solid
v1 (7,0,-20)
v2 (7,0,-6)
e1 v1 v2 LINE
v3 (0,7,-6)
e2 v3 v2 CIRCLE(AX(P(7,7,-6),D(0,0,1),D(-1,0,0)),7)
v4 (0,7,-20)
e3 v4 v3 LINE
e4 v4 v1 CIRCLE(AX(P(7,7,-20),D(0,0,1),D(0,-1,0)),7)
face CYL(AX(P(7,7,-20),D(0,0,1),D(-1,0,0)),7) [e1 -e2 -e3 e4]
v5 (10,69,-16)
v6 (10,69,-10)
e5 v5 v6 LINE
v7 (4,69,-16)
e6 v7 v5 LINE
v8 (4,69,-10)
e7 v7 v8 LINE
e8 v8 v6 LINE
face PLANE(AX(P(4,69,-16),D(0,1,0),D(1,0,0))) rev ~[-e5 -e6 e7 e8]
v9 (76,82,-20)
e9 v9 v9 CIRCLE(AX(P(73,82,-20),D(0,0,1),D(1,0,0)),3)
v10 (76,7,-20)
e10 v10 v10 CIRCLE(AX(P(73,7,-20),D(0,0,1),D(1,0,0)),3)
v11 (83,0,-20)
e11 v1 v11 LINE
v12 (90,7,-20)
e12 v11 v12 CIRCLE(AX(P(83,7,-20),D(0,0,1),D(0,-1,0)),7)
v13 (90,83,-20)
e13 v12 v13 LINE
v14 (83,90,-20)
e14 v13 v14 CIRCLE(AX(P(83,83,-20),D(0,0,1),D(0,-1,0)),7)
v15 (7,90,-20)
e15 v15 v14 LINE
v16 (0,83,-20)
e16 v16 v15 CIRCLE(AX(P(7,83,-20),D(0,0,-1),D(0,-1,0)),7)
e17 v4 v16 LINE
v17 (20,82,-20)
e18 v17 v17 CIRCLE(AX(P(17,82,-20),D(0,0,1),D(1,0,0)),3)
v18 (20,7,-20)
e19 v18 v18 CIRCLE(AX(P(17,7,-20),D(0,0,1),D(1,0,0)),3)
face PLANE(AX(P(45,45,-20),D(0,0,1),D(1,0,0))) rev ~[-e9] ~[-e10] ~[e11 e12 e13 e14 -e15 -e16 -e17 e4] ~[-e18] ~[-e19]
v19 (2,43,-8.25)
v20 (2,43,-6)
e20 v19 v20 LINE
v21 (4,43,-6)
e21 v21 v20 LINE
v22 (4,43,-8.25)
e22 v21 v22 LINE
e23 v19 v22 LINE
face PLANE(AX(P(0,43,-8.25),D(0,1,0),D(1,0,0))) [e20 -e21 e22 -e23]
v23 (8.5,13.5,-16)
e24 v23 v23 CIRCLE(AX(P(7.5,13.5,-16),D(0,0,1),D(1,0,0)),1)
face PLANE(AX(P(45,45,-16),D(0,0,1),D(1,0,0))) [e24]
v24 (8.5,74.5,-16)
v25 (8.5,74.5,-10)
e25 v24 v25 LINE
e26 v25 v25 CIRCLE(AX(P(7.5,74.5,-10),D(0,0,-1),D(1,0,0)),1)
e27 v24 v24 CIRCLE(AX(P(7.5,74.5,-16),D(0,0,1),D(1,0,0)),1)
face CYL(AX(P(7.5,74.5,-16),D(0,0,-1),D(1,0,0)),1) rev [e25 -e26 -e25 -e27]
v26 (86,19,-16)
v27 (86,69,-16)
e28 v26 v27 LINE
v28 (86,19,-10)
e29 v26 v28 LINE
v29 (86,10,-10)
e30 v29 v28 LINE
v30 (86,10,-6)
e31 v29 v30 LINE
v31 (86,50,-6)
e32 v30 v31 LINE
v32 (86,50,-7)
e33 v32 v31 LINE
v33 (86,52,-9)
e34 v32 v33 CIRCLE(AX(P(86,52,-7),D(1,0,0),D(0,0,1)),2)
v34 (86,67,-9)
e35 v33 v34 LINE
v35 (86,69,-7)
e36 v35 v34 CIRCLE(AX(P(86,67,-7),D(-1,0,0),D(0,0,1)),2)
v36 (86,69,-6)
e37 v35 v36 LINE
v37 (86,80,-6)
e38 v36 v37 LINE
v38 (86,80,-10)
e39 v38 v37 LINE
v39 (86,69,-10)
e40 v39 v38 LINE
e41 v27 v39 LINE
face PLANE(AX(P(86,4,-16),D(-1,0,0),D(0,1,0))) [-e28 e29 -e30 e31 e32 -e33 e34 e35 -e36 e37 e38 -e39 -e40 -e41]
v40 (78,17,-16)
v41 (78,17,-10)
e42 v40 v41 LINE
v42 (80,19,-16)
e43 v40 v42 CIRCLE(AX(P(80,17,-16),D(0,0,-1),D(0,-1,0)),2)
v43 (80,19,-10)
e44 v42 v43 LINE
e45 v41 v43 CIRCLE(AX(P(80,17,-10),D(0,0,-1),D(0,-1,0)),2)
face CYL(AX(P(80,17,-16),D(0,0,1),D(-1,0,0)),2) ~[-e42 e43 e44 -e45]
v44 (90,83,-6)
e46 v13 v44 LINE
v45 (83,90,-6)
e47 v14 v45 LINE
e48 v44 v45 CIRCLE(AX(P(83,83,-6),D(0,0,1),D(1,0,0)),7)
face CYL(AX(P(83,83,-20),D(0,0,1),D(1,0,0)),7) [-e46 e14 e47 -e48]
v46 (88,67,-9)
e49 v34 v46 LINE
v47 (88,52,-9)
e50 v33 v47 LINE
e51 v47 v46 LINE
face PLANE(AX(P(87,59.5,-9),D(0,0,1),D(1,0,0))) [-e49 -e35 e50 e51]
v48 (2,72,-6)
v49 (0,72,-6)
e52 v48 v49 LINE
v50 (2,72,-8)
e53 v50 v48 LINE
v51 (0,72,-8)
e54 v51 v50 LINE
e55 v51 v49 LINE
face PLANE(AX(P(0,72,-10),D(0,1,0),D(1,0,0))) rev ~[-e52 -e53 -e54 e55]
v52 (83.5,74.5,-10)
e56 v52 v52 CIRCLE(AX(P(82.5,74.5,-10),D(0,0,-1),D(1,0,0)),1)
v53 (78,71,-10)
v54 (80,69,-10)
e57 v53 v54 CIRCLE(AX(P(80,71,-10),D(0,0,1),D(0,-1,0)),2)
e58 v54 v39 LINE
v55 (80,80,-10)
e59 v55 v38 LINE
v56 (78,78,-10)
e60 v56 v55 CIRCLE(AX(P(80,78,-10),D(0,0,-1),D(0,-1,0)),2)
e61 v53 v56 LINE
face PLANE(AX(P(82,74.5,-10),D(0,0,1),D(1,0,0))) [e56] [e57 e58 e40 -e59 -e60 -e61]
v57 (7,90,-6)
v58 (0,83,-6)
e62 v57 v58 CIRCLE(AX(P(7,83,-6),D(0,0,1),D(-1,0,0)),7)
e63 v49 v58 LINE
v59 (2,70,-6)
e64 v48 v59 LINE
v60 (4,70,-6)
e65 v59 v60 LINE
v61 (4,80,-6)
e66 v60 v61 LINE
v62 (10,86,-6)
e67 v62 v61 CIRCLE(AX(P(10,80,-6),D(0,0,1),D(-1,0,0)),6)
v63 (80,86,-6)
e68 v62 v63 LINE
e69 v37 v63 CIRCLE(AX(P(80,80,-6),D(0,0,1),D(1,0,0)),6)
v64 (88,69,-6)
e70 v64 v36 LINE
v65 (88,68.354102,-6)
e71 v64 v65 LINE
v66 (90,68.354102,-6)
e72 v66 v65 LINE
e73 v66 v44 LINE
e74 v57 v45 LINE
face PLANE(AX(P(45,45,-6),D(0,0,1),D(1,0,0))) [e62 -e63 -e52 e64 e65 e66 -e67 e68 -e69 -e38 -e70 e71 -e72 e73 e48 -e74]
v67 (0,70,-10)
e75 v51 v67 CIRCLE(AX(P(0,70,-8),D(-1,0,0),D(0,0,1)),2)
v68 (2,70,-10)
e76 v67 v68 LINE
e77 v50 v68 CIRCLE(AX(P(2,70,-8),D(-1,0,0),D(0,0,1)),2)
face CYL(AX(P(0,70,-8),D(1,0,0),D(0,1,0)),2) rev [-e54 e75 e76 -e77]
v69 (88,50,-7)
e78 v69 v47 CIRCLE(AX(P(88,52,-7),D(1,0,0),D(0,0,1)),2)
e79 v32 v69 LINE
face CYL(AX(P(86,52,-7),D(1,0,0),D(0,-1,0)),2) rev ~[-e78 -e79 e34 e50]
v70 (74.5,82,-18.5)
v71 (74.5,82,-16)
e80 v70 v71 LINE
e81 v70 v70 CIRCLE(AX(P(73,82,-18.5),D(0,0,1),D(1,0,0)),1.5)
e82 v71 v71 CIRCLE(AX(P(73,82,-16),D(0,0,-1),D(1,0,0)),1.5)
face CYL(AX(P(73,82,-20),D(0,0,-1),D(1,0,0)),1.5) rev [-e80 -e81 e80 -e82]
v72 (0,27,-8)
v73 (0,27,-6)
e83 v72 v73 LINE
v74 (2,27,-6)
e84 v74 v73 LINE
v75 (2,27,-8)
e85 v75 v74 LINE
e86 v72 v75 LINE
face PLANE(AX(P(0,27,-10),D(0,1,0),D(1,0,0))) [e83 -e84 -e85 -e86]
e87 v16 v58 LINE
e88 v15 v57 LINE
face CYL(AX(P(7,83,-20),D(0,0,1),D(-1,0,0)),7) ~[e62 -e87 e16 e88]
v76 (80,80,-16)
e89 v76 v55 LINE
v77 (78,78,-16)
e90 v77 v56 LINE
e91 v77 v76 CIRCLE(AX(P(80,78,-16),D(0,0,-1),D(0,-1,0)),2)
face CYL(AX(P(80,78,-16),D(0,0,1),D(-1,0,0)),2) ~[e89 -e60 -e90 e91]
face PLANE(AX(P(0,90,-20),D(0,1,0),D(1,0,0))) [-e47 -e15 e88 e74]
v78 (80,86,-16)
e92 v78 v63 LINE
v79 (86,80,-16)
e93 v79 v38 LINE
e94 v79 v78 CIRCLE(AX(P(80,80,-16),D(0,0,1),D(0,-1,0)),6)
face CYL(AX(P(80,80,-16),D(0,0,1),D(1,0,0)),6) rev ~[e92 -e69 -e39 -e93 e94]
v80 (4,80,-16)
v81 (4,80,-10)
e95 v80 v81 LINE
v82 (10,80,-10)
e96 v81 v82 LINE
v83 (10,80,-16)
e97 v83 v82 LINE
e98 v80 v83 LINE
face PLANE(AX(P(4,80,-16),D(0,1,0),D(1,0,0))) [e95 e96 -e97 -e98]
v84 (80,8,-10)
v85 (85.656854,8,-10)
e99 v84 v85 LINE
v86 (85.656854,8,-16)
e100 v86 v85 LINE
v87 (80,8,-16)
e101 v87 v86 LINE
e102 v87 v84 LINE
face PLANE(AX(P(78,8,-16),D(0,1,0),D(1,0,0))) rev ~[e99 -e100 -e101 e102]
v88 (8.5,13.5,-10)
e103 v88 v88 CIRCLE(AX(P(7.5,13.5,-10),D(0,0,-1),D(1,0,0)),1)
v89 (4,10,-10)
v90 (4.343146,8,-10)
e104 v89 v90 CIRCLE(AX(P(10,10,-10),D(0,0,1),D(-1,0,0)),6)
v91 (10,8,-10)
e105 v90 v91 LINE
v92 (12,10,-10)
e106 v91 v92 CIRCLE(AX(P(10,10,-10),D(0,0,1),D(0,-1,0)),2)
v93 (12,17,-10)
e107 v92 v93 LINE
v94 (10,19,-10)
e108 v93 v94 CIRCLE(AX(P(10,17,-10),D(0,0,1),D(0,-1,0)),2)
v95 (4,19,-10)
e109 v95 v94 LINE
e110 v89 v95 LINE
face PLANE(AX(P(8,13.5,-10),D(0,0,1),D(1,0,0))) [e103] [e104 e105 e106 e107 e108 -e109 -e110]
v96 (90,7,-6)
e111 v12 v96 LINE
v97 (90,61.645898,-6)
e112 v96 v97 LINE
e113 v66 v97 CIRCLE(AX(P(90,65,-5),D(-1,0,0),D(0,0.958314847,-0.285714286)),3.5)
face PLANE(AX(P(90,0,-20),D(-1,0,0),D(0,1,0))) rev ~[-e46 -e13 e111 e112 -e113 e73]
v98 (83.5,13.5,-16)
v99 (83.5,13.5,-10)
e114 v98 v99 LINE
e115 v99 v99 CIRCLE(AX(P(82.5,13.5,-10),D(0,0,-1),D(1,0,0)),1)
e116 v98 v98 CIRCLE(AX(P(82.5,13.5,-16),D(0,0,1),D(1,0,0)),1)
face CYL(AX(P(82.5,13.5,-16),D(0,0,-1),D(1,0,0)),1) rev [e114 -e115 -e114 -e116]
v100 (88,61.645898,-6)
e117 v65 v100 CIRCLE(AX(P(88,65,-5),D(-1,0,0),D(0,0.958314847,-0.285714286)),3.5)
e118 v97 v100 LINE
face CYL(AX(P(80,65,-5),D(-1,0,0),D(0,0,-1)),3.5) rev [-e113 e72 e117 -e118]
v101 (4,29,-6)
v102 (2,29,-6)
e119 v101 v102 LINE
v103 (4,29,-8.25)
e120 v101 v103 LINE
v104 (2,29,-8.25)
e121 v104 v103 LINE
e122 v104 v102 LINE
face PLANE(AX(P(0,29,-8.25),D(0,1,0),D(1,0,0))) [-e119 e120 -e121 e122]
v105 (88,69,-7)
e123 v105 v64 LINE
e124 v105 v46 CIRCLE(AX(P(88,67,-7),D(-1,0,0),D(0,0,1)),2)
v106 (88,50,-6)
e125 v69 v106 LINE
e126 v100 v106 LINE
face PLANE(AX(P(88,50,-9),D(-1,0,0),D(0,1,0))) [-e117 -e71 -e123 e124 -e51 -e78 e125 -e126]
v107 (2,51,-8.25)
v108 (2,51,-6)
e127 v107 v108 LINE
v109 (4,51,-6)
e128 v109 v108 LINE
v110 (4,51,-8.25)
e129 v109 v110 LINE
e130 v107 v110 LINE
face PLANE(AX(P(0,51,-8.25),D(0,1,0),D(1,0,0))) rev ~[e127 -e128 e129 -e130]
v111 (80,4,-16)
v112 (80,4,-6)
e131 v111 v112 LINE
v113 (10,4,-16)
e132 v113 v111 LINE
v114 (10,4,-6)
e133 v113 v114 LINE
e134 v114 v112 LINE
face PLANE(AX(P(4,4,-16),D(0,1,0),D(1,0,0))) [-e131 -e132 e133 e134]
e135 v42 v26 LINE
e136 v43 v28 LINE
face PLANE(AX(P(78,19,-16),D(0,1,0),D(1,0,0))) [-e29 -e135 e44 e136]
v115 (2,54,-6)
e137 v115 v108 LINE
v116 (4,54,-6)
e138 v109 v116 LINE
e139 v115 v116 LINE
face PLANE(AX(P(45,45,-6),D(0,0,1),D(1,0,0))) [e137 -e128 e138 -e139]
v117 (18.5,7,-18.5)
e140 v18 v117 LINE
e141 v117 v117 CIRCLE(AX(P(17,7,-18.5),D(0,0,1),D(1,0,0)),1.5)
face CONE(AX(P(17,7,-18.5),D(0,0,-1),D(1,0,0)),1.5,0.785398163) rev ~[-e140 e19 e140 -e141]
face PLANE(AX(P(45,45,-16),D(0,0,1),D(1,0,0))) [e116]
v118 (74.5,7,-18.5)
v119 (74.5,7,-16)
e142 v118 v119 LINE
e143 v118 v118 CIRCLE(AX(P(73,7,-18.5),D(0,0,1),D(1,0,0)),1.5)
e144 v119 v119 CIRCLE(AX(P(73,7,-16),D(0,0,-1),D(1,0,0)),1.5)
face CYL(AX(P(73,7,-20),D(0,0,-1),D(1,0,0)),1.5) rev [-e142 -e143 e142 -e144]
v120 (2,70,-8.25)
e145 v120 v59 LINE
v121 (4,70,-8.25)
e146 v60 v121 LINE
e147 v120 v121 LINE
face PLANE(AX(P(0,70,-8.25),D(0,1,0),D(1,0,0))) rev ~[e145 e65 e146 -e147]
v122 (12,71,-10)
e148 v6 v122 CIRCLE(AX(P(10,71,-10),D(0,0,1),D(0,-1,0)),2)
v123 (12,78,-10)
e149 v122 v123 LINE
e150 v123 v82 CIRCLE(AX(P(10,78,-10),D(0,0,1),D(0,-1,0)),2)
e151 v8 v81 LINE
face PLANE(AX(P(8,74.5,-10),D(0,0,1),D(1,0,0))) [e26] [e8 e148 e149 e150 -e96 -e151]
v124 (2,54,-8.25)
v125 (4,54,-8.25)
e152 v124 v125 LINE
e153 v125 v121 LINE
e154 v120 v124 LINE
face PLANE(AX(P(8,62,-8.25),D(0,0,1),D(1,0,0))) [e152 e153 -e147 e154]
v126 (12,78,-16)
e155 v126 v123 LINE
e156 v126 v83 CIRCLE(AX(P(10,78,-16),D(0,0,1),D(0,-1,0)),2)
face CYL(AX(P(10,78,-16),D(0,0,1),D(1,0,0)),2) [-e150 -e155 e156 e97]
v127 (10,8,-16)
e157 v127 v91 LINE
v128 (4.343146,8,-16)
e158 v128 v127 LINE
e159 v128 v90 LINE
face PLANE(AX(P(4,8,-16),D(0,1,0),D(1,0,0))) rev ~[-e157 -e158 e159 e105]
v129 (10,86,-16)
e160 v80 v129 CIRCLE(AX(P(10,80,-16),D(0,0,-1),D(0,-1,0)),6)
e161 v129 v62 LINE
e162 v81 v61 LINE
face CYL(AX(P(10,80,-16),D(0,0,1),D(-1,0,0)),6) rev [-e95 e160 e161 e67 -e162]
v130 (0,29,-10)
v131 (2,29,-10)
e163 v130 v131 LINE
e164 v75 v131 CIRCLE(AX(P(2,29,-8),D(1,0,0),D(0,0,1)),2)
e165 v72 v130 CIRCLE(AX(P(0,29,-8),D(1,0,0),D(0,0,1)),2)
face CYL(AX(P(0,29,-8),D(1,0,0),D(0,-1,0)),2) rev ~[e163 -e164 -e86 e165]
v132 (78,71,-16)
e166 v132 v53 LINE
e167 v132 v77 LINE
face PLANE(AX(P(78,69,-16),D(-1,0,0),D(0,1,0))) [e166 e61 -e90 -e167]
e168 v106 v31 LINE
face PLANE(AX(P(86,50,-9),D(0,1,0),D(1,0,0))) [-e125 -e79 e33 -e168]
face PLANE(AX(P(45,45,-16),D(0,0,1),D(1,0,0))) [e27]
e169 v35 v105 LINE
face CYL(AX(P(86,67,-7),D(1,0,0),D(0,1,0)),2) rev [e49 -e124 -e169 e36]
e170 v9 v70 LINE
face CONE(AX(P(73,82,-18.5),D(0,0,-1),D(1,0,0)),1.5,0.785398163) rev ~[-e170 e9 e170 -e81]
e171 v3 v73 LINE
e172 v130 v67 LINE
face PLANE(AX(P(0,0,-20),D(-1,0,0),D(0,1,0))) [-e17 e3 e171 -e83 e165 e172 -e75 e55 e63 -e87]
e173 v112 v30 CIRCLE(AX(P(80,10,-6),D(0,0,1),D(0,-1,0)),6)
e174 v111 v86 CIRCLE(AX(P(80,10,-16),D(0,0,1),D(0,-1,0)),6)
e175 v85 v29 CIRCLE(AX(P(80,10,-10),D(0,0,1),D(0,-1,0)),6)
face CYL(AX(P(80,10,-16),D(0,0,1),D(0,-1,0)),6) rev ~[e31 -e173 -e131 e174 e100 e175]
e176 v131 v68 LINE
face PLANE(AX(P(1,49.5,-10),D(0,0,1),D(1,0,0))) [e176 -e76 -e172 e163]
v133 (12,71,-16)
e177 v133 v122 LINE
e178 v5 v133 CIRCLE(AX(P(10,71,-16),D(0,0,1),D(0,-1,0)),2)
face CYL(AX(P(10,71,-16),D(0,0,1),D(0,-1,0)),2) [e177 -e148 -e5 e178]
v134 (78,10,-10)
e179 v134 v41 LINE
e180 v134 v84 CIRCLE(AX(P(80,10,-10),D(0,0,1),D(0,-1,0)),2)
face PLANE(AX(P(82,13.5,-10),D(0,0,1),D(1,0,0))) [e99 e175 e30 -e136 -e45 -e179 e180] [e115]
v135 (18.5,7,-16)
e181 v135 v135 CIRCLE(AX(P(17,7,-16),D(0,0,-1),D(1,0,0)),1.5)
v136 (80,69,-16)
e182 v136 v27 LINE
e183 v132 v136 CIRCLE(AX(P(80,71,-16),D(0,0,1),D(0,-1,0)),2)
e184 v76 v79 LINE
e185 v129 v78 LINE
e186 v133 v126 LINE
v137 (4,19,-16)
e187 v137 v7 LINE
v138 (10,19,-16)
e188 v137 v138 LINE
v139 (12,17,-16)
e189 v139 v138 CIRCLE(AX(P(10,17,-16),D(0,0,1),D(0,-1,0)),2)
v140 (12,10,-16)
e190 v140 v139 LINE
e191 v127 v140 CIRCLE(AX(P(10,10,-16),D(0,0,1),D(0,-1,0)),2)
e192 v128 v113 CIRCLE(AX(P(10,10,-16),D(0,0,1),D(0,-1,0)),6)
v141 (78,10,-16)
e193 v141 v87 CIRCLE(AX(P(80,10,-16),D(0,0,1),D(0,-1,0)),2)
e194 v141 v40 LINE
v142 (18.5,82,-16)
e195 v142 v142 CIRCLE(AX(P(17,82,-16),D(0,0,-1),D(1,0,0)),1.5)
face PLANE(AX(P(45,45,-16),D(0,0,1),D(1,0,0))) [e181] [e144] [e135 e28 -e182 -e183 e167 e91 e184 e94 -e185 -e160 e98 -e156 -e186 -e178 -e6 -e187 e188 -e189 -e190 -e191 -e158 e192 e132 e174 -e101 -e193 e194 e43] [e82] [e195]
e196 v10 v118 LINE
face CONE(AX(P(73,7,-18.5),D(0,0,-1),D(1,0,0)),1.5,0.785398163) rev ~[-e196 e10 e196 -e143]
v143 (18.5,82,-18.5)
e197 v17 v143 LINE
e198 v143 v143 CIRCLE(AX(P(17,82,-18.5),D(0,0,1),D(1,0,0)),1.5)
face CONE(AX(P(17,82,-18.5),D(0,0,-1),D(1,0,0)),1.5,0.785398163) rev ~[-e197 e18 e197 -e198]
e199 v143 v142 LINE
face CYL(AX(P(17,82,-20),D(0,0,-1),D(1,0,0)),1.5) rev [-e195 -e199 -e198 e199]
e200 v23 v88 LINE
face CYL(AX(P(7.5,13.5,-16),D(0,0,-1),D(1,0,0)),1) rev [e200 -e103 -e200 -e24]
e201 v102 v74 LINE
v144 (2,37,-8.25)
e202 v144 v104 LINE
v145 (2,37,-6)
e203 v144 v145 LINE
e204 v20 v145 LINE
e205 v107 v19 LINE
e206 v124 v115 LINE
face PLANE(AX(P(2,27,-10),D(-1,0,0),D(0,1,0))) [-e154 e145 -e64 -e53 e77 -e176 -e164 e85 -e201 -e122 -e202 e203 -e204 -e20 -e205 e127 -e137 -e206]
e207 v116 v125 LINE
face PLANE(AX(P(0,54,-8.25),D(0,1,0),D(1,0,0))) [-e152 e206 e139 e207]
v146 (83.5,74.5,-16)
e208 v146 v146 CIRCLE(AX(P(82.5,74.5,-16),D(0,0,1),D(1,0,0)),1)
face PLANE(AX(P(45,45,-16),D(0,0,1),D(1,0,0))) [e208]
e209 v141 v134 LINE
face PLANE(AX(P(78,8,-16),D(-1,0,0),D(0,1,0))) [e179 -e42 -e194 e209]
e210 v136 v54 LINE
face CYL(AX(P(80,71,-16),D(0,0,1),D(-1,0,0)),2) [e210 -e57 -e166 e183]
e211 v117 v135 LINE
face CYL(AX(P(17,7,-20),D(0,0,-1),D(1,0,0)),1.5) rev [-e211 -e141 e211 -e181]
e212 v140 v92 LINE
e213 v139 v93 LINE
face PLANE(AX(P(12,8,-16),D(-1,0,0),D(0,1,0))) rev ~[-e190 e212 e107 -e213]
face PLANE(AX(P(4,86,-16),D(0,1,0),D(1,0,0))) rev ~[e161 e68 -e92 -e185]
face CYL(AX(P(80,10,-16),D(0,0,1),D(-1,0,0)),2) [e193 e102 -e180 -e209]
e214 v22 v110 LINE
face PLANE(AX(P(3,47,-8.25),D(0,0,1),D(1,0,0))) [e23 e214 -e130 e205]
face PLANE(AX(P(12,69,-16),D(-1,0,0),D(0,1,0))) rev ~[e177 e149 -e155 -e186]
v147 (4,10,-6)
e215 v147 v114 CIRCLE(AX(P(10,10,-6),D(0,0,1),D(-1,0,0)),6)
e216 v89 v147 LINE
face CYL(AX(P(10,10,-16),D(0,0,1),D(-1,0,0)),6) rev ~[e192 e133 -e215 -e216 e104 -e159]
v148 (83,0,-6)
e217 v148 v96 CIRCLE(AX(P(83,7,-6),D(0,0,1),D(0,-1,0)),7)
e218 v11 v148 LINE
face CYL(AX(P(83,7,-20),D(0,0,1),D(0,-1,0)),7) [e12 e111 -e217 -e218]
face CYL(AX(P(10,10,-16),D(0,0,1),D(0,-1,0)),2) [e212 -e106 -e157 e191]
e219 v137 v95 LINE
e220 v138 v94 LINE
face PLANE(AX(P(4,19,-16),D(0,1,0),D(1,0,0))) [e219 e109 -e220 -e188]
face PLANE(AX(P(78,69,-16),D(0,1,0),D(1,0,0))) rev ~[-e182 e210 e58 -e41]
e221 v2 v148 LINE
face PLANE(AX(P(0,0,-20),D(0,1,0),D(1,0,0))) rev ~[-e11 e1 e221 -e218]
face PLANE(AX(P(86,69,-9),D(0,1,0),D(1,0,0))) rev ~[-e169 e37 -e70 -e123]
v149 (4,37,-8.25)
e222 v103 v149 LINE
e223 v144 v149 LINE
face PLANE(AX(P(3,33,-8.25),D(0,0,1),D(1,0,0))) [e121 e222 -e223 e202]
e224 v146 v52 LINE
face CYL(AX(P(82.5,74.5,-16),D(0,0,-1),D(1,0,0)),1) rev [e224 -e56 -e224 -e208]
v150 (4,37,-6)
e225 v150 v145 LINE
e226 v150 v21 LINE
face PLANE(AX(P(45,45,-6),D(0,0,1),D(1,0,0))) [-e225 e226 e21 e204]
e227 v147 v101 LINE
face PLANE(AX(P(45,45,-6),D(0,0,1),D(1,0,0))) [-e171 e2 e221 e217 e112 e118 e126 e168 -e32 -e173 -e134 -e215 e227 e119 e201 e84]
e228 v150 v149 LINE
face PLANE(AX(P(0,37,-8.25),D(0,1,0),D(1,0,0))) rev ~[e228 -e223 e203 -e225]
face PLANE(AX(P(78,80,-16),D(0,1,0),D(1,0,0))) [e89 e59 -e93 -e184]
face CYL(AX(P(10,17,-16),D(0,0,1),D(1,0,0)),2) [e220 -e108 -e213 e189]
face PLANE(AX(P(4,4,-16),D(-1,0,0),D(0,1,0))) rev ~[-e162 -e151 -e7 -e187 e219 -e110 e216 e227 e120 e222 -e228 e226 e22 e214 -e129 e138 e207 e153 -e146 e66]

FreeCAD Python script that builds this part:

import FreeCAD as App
import Part
import Sketcher
from FreeCAD import Vector


def edges_at(feature, points):
    """Names of the edges that pass closest to the given points."""
    edges = feature.Shape.Edges
    near = lambda p: min(range(len(edges)), key=lambda i: edges[i].distToShape(Part.Vertex(*p))[0])
    return sorted({f"Edge{near(p) + 1}" for p in points})


def add_polygon(sketch, points):
    """Adds a closed chain of lines whose ends are joined by coincident constraints."""
    first, n = sketch.GeometryCount, len(points)
    for a, b in zip(points, points[1:] + points[:1]):
        sketch.addGeometry(Part.LineSegment(App.Vector(*a, 0), App.Vector(*b, 0)), False)
    for i in range(n):
        sketch.addConstraint(Sketcher.Constraint("Coincident", first + i, 2, first + (i + 1) % n, 1))

doc = App.newDocument("Part")
body = doc.addObject("PartDesign::Body", "Body")

# Sketch on XY plane
sketch1 = body.newObject("Sketcher::SketchObject", "Sketch")
sketch1.AttachmentSupport = (doc.getObject("XY_Plane"), [""])
sketch1.MapMode = "FlatFace"
sketch1.AttachmentOffset = App.Placement(Vector(0, 0, 4), App.Rotation())
sketch1.addGeometry(Part.Circle(Vector(82.5, 74.5, 0), Vector(0, 0, 1), 1), False)
sketch1.addConstraint([
    Sketcher.Constraint("Diameter", 0, 2.0),
    Sketcher.Constraint("DistanceX", -1, 1, 0, 3, 82.5),
    Sketcher.Constraint("DistanceY", -1, 1, 0, 3, 74.5),
])
pad1 = body.newObject("PartDesign::Pad", "Pad")
pad1.Profile = sketch1
pad1.Length = 8
body2 = doc.addObject("PartDesign::Body", "Body001")

# Sketch on XY plane
sketch2 = body2.newObject("Sketcher::SketchObject", "Sketch001")
sketch2.AttachmentSupport = (doc.getObject("XY_Plane001"), [""])
sketch2.MapMode = "FlatFace"
sketch2.AttachmentOffset = App.Placement(Vector(0, 0, 4), App.Rotation())
add_polygon(sketch2, [(78, 19), (78, 8), (86, 8), (86, 19)])  # lines 0-3
sketch2.addConstraint([
    Sketcher.Constraint("Vertical", 0),
    Sketcher.Constraint("Horizontal", 1),
    Sketcher.Constraint("Vertical", 2),
    Sketcher.Constraint("Horizontal", 3),
    Sketcher.Constraint("DistanceX", 1, 1, 1, 2, 8.0),
    Sketcher.Constraint("DistanceY", 0, 2, 0, 1, 11.0),
    Sketcher.Constraint("DistanceX", -1, 1, 0, 2, 78.0),
    Sketcher.Constraint("DistanceY", -1, 1, 0, 2, 8.0),
])
pad2 = body2.newObject("PartDesign::Pad", "Pad001")
pad2.Profile = sketch2
pad2.Length = 6
doc.recompute()

fillet = body2.newObject("PartDesign::Fillet", "Fillet")
fillet.Base = (pad2, edges_at(pad2, [(78, 8, 7), (78, 19, 7)]))
fillet.Radius = 2
body3 = doc.addObject("PartDesign::Body", "Body002")
doc.recompute()

body2.Placement = App.Placement(Vector(0, 61, 0), App.Rotation(Vector(0, 0, 1), 0))
boolean = body3.newObject("PartDesign::Boolean", "Boolean")
boolean.Type = "Fuse"
boolean.addObjects([body2])
doc.recompute()

boolean2 = body3.newObject("PartDesign::Boolean", "Boolean001")
boolean2.Type = "Cut"
boolean2.addObjects([body])
body4 = doc.addObject("PartDesign::Body", "Body003")

# Sketch on XY plane
sketch3 = body4.newObject("Sketcher::SketchObject", "Sketch002")
sketch3.AttachmentSupport = (doc.getObject("XY_Plane003"), [""])
sketch3.MapMode = "FlatFace"
sketch3.AttachmentOffset = App.Placement(Vector(0, 0, 4), App.Rotation())
sketch3.addGeometry(Part.Circle(Vector(82.5, 13.5, 0), Vector(0, 0, 1), 1), False)
sketch3.addConstraint([
    Sketcher.Constraint("Diameter", 0, 2.0),
    Sketcher.Constraint("DistanceX", -1, 1, 0, 3, 82.5),
    Sketcher.Constraint("DistanceY", -1, 1, 0, 3, 13.5),
])
pad3 = body4.newObject("PartDesign::Pad", "Pad002")
pad3.Profile = sketch3
pad3.Length = 9
body5 = doc.addObject("PartDesign::Body", "Body004")

# Sketch on XY plane
sketch4 = body5.newObject("Sketcher::SketchObject", "Sketch003")
sketch4.AttachmentSupport = (doc.getObject("XY_Plane004"), [""])
sketch4.MapMode = "FlatFace"
sketch4.AttachmentOffset = App.Placement(Vector(0, 0, 4), App.Rotation())
add_polygon(sketch4, [(78, 19), (78, 8), (86, 8), (86, 19)])  # lines 0-3
sketch4.addConstraint([
    Sketcher.Constraint("Vertical", 0),
    Sketcher.Constraint("Horizontal", 1),
    Sketcher.Constraint("Vertical", 2),
    Sketcher.Constraint("Horizontal", 3),
    Sketcher.Constraint("DistanceX", 1, 1, 1, 2, 8.0),
    Sketcher.Constraint("DistanceY", 0, 2, 0, 1, 11.0),
    Sketcher.Constraint("DistanceX", -1, 1, 0, 2, 78.0),
    Sketcher.Constraint("DistanceY", -1, 1, 0, 2, 8.0),
])
pad4 = body5.newObject("PartDesign::Pad", "Pad003")
pad4.Profile = sketch4
pad4.Length = 6
doc.recompute()

fillet2 = body5.newObject("PartDesign::Fillet", "Fillet001")
fillet2.Base = (pad4, edges_at(pad4, [(78, 8, 7), (78, 19, 7)]))
fillet2.Radius = 2
doc.recompute()

boolean3 = body5.newObject("PartDesign::Boolean", "Boolean002")
boolean3.Type = "Cut"
boolean3.addObjects([body4])
body6 = doc.addObject("PartDesign::Body", "Body005")

# Sketch on XY plane
sketch5 = body6.newObject("Sketcher::SketchObject", "Sketch004")
sketch5.AttachmentSupport = (doc.getObject("XY_Plane005"), [""])
sketch5.MapMode = "FlatFace"
sketch5.AttachmentOffset = App.Placement(Vector(0, 0, 4), App.Rotation())
sketch5.addGeometry(Part.Circle(Vector(7.5, 74.5, 0), Vector(0, 0, 1), 1), False)
sketch5.addConstraint([
    Sketcher.Constraint("Diameter", 0, 2.0),
    Sketcher.Constraint("DistanceX", -1, 1, 0, 3, 7.5),
    Sketcher.Constraint("DistanceY", -1, 1, 0, 3, 74.5),
])
pad5 = body6.newObject("PartDesign::Pad", "Pad004")
pad5.Profile = sketch5
pad5.Length = 8
body7 = doc.addObject("PartDesign::Body", "Body006")

# Sketch on XY plane
sketch6 = body7.newObject("Sketcher::SketchObject", "Sketch005")
sketch6.AttachmentSupport = (doc.getObject("XY_Plane006"), [""])
sketch6.MapMode = "FlatFace"
sketch6.AttachmentOffset = App.Placement(Vector(0, 0, 3), App.Rotation())
add_polygon(sketch6, [(4, 19), (4, 8), (12, 8), (12, 19)])  # lines 0-3
sketch6.addConstraint([
    Sketcher.Constraint("Vertical", 0),
    Sketcher.Constraint("Horizontal", 1),
    Sketcher.Constraint("Vertical", 2),
    Sketcher.Constraint("Horizontal", 3),
    Sketcher.Constraint("DistanceX", 1, 1, 1, 2, 8.0),
    Sketcher.Constraint("DistanceY", 0, 2, 0, 1, 11.0),
    Sketcher.Constraint("DistanceX", -1, 1, 0, 2, 4.0),
    Sketcher.Constraint("DistanceY", -1, 1, 0, 2, 8.0),
])
pad6 = body7.newObject("PartDesign::Pad", "Pad005")
pad6.Profile = sketch6
pad6.Length = 6
doc.recompute()

fillet3 = body7.newObject("PartDesign::Fillet", "Fillet002")
fillet3.Base = (pad6, edges_at(pad6, [(12, 8, 6), (12, 19, 6)]))
fillet3.Radius = 2
body8 = doc.addObject("PartDesign::Body", "Body007")
doc.recompute()

body7.Placement = App.Placement(Vector(0, 61, 1), App.Rotation(Vector(0, 0, 1), 0))
boolean4 = body8.newObject("PartDesign::Boolean", "Boolean003")
boolean4.Type = "Fuse"
boolean4.addObjects([body7])
doc.recompute()

boolean5 = body8.newObject("PartDesign::Boolean", "Boolean004")
boolean5.Type = "Cut"
boolean5.addObjects([body6])
body9 = doc.addObject("PartDesign::Body", "Body008")

# Sketch on XY plane
sketch7 = body9.newObject("Sketcher::SketchObject", "Sketch006")
sketch7.AttachmentSupport = (doc.getObject("XY_Plane008"), [""])
sketch7.MapMode = "FlatFace"
sketch7.AttachmentOffset = App.Placement(Vector(0, 0, 4), App.Rotation())
sketch7.addGeometry(Part.Circle(Vector(7.5, 13.5, 0), Vector(0, 0, 1), 1), False)
sketch7.addConstraint([
    Sketcher.Constraint("Diameter", 0, 2.0),
    Sketcher.Constraint("DistanceX", -1, 1, 0, 3, 7.5),
    Sketcher.Constraint("DistanceY", -1, 1, 0, 3, 13.5),
])
pad7 = body9.newObject("PartDesign::Pad", "Pad006")
pad7.Profile = sketch7
pad7.Length = 8
body10 = doc.addObject("PartDesign::Body", "Body009")

# Sketch on XY plane
sketch8 = body10.newObject("Sketcher::SketchObject", "Sketch007")
sketch8.AttachmentSupport = (doc.getObject("XY_Plane009"), [""])
sketch8.MapMode = "FlatFace"
sketch8.AttachmentOffset = App.Placement(Vector(0, 0, 3), App.Rotation())
add_polygon(sketch8, [(4, 19), (4, 8), (12, 8), (12, 19)])  # lines 0-3
sketch8.addConstraint([
    Sketcher.Constraint("Vertical", 0),
    Sketcher.Constraint("Horizontal", 1),
    Sketcher.Constraint("Vertical", 2),
    Sketcher.Constraint("Horizontal", 3),
    Sketcher.Constraint("DistanceX", 1, 1, 1, 2, 8.0),
    Sketcher.Constraint("DistanceY", 0, 2, 0, 1, 11.0),
    Sketcher.Constraint("DistanceX", -1, 1, 0, 2, 4.0),
    Sketcher.Constraint("DistanceY", -1, 1, 0, 2, 8.0),
])
pad8 = body10.newObject("PartDesign::Pad", "Pad007")
pad8.Profile = sketch8
pad8.Length = 6
doc.recompute()

fillet4 = body10.newObject("PartDesign::Fillet", "Fillet003")
fillet4.Base = (pad8, edges_at(pad8, [(12, 8, 6), (12, 19, 6)]))
fillet4.Radius = 2
body11 = doc.addObject("PartDesign::Body", "Body010")
doc.recompute()

body10.Placement = App.Placement(Vector(0, 0, 1), App.Rotation(Vector(0, 0, 1), 0))
boolean6 = body11.newObject("PartDesign::Boolean", "Boolean005")
boolean6.Type = "Fuse"
boolean6.addObjects([body10])
doc.recompute()

boolean7 = body11.newObject("PartDesign::Boolean", "Boolean006")
boolean7.Type = "Cut"
boolean7.addObjects([body9])
body12 = doc.addObject("PartDesign::Body", "Body011")

# Sketch on XY plane
sketch9 = body12.newObject("Sketcher::SketchObject", "Sketch008")
sketch9.AttachmentSupport = (doc.getObject("XY_Plane011"), [""])
sketch9.MapMode = "FlatFace"
sketch9.AttachmentOffset = App.Placement(Vector(0, 0, 10), App.Rotation())
add_polygon(sketch9, [(0, 72), (0, 27), (2, 27), (2, 72)])  # lines 0-3
sketch9.addConstraint([
    Sketcher.Constraint("Vertical", 0),
    Sketcher.Constraint("Horizontal", 1),
    Sketcher.Constraint("Vertical", 2),
    Sketcher.Constraint("Horizontal", 3),
    Sketcher.Constraint("PointOnObject", 0, 2, -2),
    Sketcher.Constraint("DistanceX", 1, 1, 1, 2, 2.0),
    Sketcher.Constraint("DistanceY", 0, 2, 0, 1, 45.0),
    Sketcher.Constraint("DistanceY", -1, 1, 0, 2, 27.0),
])
pad9 = body12.newObject("PartDesign::Pad", "Pad008")
pad9.Profile = sketch9
pad9.Length = 8
doc.recompute()

fillet5 = body12.newObject("PartDesign::Fillet", "Fillet004")
fillet5.Base = (pad9, edges_at(pad9, [
    (1, 27, 10),
    (1, 27, 18),
    (1, 72, 10),
    (1, 72, 18),
]))
fillet5.Radius = 2
body13 = doc.addObject("PartDesign::Body", "Body012")

# Sketch on XY plane
sketch10 = body13.newObject("Sketcher::SketchObject", "Sketch009")
sketch10.AttachmentSupport = (doc.getObject("XY_Plane012"), [""])
sketch10.MapMode = "FlatFace"
sketch10.AttachmentOffset = App.Placement(Vector(0, 0, 11.75), App.Rotation())
add_polygon(sketch10, [(0, 51), (0, 43), (6, 43), (6, 51)])  # lines 0-3
sketch10.addConstraint([
    Sketcher.Constraint("Vertical", 0),
    Sketcher.Constraint("Horizontal", 1),
    Sketcher.Constraint("Vertical", 2),
    Sketcher.Constraint("Horizontal", 3),
    Sketcher.Constraint("PointOnObject", 0, 2, -2),
    Sketcher.Constraint("DistanceX", 1, 1, 1, 2, 6.0),
    Sketcher.Constraint("DistanceY", 0, 2, 0, 1, 8.0),
    Sketcher.Constraint("DistanceY", -1, 1, 0, 2, 43.0),
])
pad10 = body13.newObject("PartDesign::Pad", "Pad009")
pad10.Profile = sketch10
pad10.Length = 3
body14 = doc.addObject("PartDesign::Body", "Body013")

# Sketch on XY plane
sketch11 = body14.newObject("Sketcher::SketchObject", "Sketch010")
sketch11.AttachmentSupport = (doc.getObject("XY_Plane013"), [""])
sketch11.MapMode = "FlatFace"
sketch11.addGeometry(Part.Circle(Vector(17, 7, 0), Vector(0, 0, 1), 1.5), False)
sketch11.addConstraint([
    Sketcher.Constraint("Diameter", 0, 3.0),
    Sketcher.Constraint("DistanceX", -1, 1, 0, 3, 17.0),
    Sketcher.Constraint("DistanceY", -1, 1, 0, 3, 7.0),
])
pad11 = body14.newObject("PartDesign::Pad", "Pad010")
pad11.Profile = sketch11
pad11.Length = 10
body15 = doc.addObject("PartDesign::Body", "Body014")

# Sketch on XY plane
sketch12 = body15.newObject("Sketcher::SketchObject", "Sketch011")
sketch12.AttachmentSupport = (doc.getObject("XY_Plane014"), [""])
sketch12.MapMode = "FlatFace"
sketch12.addGeometry(Part.Circle(Vector(17, 82, 0), Vector(0, 0, 1), 1.5), False)
sketch12.addConstraint([
    Sketcher.Constraint("Diameter", 0, 3.0),
    Sketcher.Constraint("DistanceX", -1, 1, 0, 3, 17.0),
    Sketcher.Constraint("DistanceY", -1, 1, 0, 3, 82.0),
])
pad12 = body15.newObject("PartDesign::Pad", "Pad011")
pad12.Profile = sketch12
pad12.Length = 10
body16 = doc.addObject("PartDesign::Body", "Body015")

# Sketch on XY plane
sketch13 = body16.newObject("Sketcher::SketchObject", "Sketch012")
sketch13.AttachmentSupport = (doc.getObject("XY_Plane015"), [""])
sketch13.MapMode = "FlatFace"
sketch13.addGeometry(Part.Circle(Vector(73, 82, 0), Vector(0, 0, 1), 1.5), False)
sketch13.addConstraint([
    Sketcher.Constraint("Diameter", 0, 3.0),
    Sketcher.Constraint("DistanceX", -1, 1, 0, 3, 73.0),
    Sketcher.Constraint("DistanceY", -1, 1, 0, 3, 82.0),
])
pad13 = body16.newObject("PartDesign::Pad", "Pad012")
pad13.Profile = sketch13
pad13.Length = 10
body17 = doc.addObject("PartDesign::Body", "Body016")

# Sketch on XY plane
sketch14 = body17.newObject("Sketcher::SketchObject", "Sketch013")
sketch14.AttachmentSupport = (doc.getObject("XY_Plane016"), [""])
sketch14.MapMode = "FlatFace"
sketch14.addGeometry(Part.Circle(Vector(73, 7, 0), Vector(0, 0, 1), 1.5), False)
sketch14.addConstraint([
    Sketcher.Constraint("Diameter", 0, 3.0),
    Sketcher.Constraint("DistanceX", -1, 1, 0, 3, 73.0),
    Sketcher.Constraint("DistanceY", -1, 1, 0, 3, 7.0),
])
pad14 = body17.newObject("PartDesign::Pad", "Pad013")
pad14.Profile = sketch14
pad14.Length = 10
body18 = doc.addObject("PartDesign::Body", "Body017")

# Sketch on XY plane
sketch15 = body18.newObject("Sketcher::SketchObject", "Sketch014")
sketch15.AttachmentSupport = (doc.getObject("XY_Plane017"), [""])
sketch15.MapMode = "FlatFace"
sketch15.AttachmentOffset = App.Placement(Vector(0, 0, 11.75), App.Rotation())
add_polygon(sketch15, [(0, 37), (0, 29), (6, 29), (6, 37)])  # lines 0-3
sketch15.addConstraint([
    Sketcher.Constraint("Vertical", 0),
    Sketcher.Constraint("Horizontal", 1),
    Sketcher.Constraint("Vertical", 2),
    Sketcher.Constraint("Horizontal", 3),
    Sketcher.Constraint("PointOnObject", 0, 2, -2),
    Sketcher.Constraint("DistanceX", 1, 1, 1, 2, 6.0),
    Sketcher.Constraint("DistanceY", 0, 2, 0, 1, 8.0),
    Sketcher.Constraint("DistanceY", -1, 1, 0, 2, 29.0),
])
pad15 = body18.newObject("PartDesign::Pad", "Pad014")
pad15.Profile = sketch15
pad15.Length = 3
body19 = doc.addObject("PartDesign::Body", "Body018")

# Sketch on XY plane
sketch16 = body19.newObject("Sketcher::SketchObject", "Sketch015")
sketch16.AttachmentSupport = (doc.getObject("XY_Plane018"), [""])
sketch16.MapMode = "FlatFace"
sketch16.AttachmentOffset = App.Placement(Vector(0, 0, 11.75), App.Rotation())
add_polygon(sketch16, [(0, 70), (0, 54), (16, 54), (16, 70)])  # lines 0-3
sketch16.addConstraint([
    Sketcher.Constraint("Vertical", 0),
    Sketcher.Constraint("Horizontal", 1),
    Sketcher.Constraint("Vertical", 2),
    Sketcher.Constraint("Horizontal", 3),
    Sketcher.Constraint("PointOnObject", 0, 2, -2),
    Sketcher.Constraint("Equal", 3, 0),
    Sketcher.Constraint("DistanceX", 1, 1, 1, 2, 16.0),
    Sketcher.Constraint("DistanceY", -1, 1, 0, 2, 54.0),
])
pad16 = body19.newObject("PartDesign::Pad", "Pad015")
pad16.Profile = sketch16
pad16.Length = 2.25
body20 = doc.addObject("PartDesign::Body", "Body019")

# Sketch on YZ plane
sketch17 = body20.newObject("Sketcher::SketchObject", "Sketch016")
sketch17.AttachmentSupport = (doc.getObject("YZ_Plane019"), [""])
sketch17.MapMode = "FlatFace"
sketch17.AttachmentOffset = App.Placement(Vector(0, 0, 80), App.Rotation())
sketch17.addGeometry(Part.Circle(Vector(65, 15, 0), Vector(0, 0, 1), 3.5), False)
sketch17.addConstraint([
    Sketcher.Constraint("Diameter", 0, 7.0),
    Sketcher.Constraint("DistanceX", -1, 1, 0, 3, 65.0),
    Sketcher.Constraint("DistanceY", -1, 1, 0, 3, 15.0),
])
pad17 = body20.newObject("PartDesign::Pad", "Pad016")
pad17.Profile = sketch17
pad17.Length = 10.5
body21 = doc.addObject("PartDesign::Body", "Body020")

# Sketch on XY plane
sketch18 = body21.newObject("Sketcher::SketchObject", "Sketch017")
sketch18.AttachmentSupport = (doc.getObject("XY_Plane020"), [""])
sketch18.MapMode = "FlatFace"
sketch18.AttachmentOffset = App.Placement(Vector(0, 0, 11), App.Rotation())
add_polygon(sketch18, [(86, 69), (86, 50), (88, 50), (88, 69)])  # lines 0-3
sketch18.addConstraint([
    Sketcher.Constraint("Vertical", 0),
    Sketcher.Constraint("Horizontal", 1),
    Sketcher.Constraint("Vertical", 2),
    Sketcher.Constraint("Horizontal", 3),
    Sketcher.Constraint("DistanceX", 1, 1, 1, 2, 2.0),
    Sketcher.Constraint("DistanceY", 0, 2, 0, 1, 19.0),
    Sketcher.Constraint("DistanceX", -1, 1, 0, 2, 86.0),
    Sketcher.Constraint("DistanceY", -1, 1, 0, 2, 50.0),
])
pad18 = body21.newObject("PartDesign::Pad", "Pad017")
pad18.Profile = sketch18
pad18.Length = 8
doc.recompute()

fillet6 = body21.newObject("PartDesign::Fillet", "Fillet005")
fillet6.Base = (pad18, edges_at(pad18, [
    (87, 50, 11),
    (87, 50, 19),
    (87, 69, 11),
    (87, 69, 19),
]))
fillet6.Radius = 2
body22 = doc.addObject("PartDesign::Body", "Body021")

# Sketch on XY plane
sketch19 = body22.newObject("Sketcher::SketchObject", "Sketch018")
sketch19.AttachmentSupport = (doc.getObject("XY_Plane021"), [""])
sketch19.MapMode = "FlatFace"
add_polygon(sketch19, [(0, 90), (0, 0), (90, 0), (90, 90)])  # lines 0-3
sketch19.addConstraint([
    Sketcher.Constraint("Vertical", 0),
    Sketcher.Constraint("Horizontal", 1),
    Sketcher.Constraint("Vertical", 2),
    Sketcher.Constraint("Horizontal", 3),
    Sketcher.Constraint("Coincident", 0, 2, -1, 1),
    Sketcher.Constraint("Equal", 3, 0),
    Sketcher.Constraint("DistanceX", 1, 1, 1, 2, 90.0),
])
pad19 = body22.newObject("PartDesign::Pad", "Pad018")
pad19.Profile = sketch19
pad19.Length = 14
body23 = doc.addObject("PartDesign::Body", "Body022")

# Sketch on XY plane
sketch20 = body23.newObject("Sketcher::SketchObject", "Sketch019")
sketch20.AttachmentSupport = (doc.getObject("XY_Plane022"), [""])
sketch20.MapMode = "FlatFace"
add_polygon(sketch20, [(0, 82), (0, 0), (82, 0), (82, 82)])  # lines 0-3
sketch20.addConstraint([
    Sketcher.Constraint("Vertical", 0),
    Sketcher.Constraint("Horizontal", 1),
    Sketcher.Constraint("Vertical", 2),
    Sketcher.Constraint("Horizontal", 3),
    Sketcher.Constraint("Coincident", 0, 2, -1, 1),
    Sketcher.Constraint("Equal", 3, 0),
    Sketcher.Constraint("DistanceX", 1, 1, 1, 2, 82.0),
])
pad20 = body23.newObject("PartDesign::Pad", "Pad019")
pad20.Profile = sketch20
pad20.Length = 82
doc.recompute()

fillet7 = body23.newObject("PartDesign::Fillet", "Fillet006")
fillet7.Base = (pad20, edges_at(pad20, [
    (0, 0, 41),
    (0, 41, 82),
    (0, 82, 41),
    (82, 0, 41),
    (82, 41, 82),
    (82, 82, 41),
    (41, 0, 82),
    (41, 82, 82),
]))
fillet7.Radius = 6
body24 = doc.addObject("PartDesign::Body", "Body023")
doc.recompute()

body23.Placement = App.Placement(Vector(4, 4, 4), App.Rotation(Vector(0, 0, 1), 0))
boolean8 = body24.newObject("PartDesign::Boolean", "Boolean007")
boolean8.Type = "Fuse"
boolean8.addObjects([body23])
body25 = doc.addObject("PartDesign::Body", "Body024")

# Sketch on XY plane
sketch21 = body25.newObject("Sketcher::SketchObject", "Sketch020")
sketch21.AttachmentSupport = (doc.getObject("XY_Plane024"), [""])
sketch21.MapMode = "FlatFace"
add_polygon(sketch21, [(0, 90), (0, 0), (90, 0), (90, 90)])  # lines 0-3
sketch21.addConstraint([
    Sketcher.Constraint("Vertical", 0),
    Sketcher.Constraint("Horizontal", 1),
    Sketcher.Constraint("Vertical", 2),
    Sketcher.Constraint("Horizontal", 3),
    Sketcher.Constraint("Coincident", 0, 2, -1, 1),
    Sketcher.Constraint("Equal", 3, 0),
    Sketcher.Constraint("DistanceX", 1, 1, 1, 2, 90.0),
])
pad21 = body25.newObject("PartDesign::Pad", "Pad020")
pad21.Profile = sketch21
pad21.Length = 90
doc.recompute()

fillet8 = body25.newObject("PartDesign::Fillet", "Fillet007")
fillet8.Base = (pad21, edges_at(pad21, [
    (0, 0, 45),
    (0, 45, 90),
    (0, 90, 45),
    (90, 0, 45),
    (90, 45, 90),
    (90, 90, 45),
    (45, 0, 90),
    (45, 90, 90),
]))
fillet8.Radius = 7
doc.recompute()

boolean9 = body25.newObject("PartDesign::Boolean", "Boolean008")
boolean9.Type = "Cut"
boolean9.addObjects([body24])
doc.recompute()

boolean10 = body25.newObject("PartDesign::Boolean", "Boolean009")
boolean10.Type = "Common"
boolean10.addObjects([body22])
doc.recompute()

boolean11 = body25.newObject("PartDesign::Boolean", "Boolean010")
boolean11.Type = "Cut"
boolean11.addObjects([body21])
doc.recompute()

boolean12 = body25.newObject("PartDesign::Boolean", "Boolean011")
boolean12.Type = "Cut"
boolean12.addObjects([body20])
doc.recompute()

boolean13 = body25.newObject("PartDesign::Boolean", "Boolean012")
boolean13.Type = "Cut"
boolean13.addObjects([body19])
doc.recompute()

boolean14 = body25.newObject("PartDesign::Boolean", "Boolean013")
boolean14.Type = "Cut"
boolean14.addObjects([body18])
doc.recompute()

boolean15 = body25.newObject("PartDesign::Boolean", "Boolean014")
boolean15.Type = "Cut"
boolean15.addObjects([body17])
doc.recompute()

boolean16 = body25.newObject("PartDesign::Boolean", "Boolean015")
boolean16.Type = "Cut"
boolean16.addObjects([body16])
doc.recompute()

boolean17 = body25.newObject("PartDesign::Boolean", "Boolean016")
boolean17.Type = "Cut"
boolean17.addObjects([body15])
doc.recompute()

boolean18 = body25.newObject("PartDesign::Boolean", "Boolean017")
boolean18.Type = "Cut"
boolean18.addObjects([body14])
doc.recompute()

boolean19 = body25.newObject("PartDesign::Boolean", "Boolean018")
boolean19.Type = "Cut"
boolean19.addObjects([body13])
doc.recompute()

boolean20 = body25.newObject("PartDesign::Boolean", "Boolean019")
boolean20.Type = "Cut"
boolean20.addObjects([body12])
doc.recompute()

chamfer = body25.newObject("PartDesign::Chamfer", "Chamfer")
chamfer.Base = (boolean20, edges_at(boolean20, [
    (15.5, 82, 0),
    (15.5, 7, 0),
    (71.5, 7, 0),
    (71.5, 82, 0),
]))
chamfer.Size = 1.5
doc.recompute()

boolean21 = body25.newObject("PartDesign::Boolean", "Boolean020")
boolean21.Type = "Fuse"
boolean21.addObjects([body3])
doc.recompute()

boolean22 = body25.newObject("PartDesign::Boolean", "Boolean021")
boolean22.Type = "Fuse"
boolean22.addObjects([body5])
doc.recompute()

boolean23 = body25.newObject("PartDesign::Boolean", "Boolean022")
boolean23.Type = "Fuse"
boolean23.addObjects([body8])
doc.recompute()

boolean24 = body25.newObject("PartDesign::Boolean", "Boolean023")
boolean24.Type = "Fuse"
boolean24.addObjects([body11])
body26 = doc.addObject("PartDesign::Body", "Body025")
doc.recompute()

body25.Placement = App.Placement(Vector(0, 0, -20), App.Rotation(Vector(0, 0, 1), 0))
boolean25 = body26.newObject("PartDesign::Boolean", "Boolean024")
boolean25.Type = "Fuse"
boolean25.addObjects([body25])

doc.recompute()
